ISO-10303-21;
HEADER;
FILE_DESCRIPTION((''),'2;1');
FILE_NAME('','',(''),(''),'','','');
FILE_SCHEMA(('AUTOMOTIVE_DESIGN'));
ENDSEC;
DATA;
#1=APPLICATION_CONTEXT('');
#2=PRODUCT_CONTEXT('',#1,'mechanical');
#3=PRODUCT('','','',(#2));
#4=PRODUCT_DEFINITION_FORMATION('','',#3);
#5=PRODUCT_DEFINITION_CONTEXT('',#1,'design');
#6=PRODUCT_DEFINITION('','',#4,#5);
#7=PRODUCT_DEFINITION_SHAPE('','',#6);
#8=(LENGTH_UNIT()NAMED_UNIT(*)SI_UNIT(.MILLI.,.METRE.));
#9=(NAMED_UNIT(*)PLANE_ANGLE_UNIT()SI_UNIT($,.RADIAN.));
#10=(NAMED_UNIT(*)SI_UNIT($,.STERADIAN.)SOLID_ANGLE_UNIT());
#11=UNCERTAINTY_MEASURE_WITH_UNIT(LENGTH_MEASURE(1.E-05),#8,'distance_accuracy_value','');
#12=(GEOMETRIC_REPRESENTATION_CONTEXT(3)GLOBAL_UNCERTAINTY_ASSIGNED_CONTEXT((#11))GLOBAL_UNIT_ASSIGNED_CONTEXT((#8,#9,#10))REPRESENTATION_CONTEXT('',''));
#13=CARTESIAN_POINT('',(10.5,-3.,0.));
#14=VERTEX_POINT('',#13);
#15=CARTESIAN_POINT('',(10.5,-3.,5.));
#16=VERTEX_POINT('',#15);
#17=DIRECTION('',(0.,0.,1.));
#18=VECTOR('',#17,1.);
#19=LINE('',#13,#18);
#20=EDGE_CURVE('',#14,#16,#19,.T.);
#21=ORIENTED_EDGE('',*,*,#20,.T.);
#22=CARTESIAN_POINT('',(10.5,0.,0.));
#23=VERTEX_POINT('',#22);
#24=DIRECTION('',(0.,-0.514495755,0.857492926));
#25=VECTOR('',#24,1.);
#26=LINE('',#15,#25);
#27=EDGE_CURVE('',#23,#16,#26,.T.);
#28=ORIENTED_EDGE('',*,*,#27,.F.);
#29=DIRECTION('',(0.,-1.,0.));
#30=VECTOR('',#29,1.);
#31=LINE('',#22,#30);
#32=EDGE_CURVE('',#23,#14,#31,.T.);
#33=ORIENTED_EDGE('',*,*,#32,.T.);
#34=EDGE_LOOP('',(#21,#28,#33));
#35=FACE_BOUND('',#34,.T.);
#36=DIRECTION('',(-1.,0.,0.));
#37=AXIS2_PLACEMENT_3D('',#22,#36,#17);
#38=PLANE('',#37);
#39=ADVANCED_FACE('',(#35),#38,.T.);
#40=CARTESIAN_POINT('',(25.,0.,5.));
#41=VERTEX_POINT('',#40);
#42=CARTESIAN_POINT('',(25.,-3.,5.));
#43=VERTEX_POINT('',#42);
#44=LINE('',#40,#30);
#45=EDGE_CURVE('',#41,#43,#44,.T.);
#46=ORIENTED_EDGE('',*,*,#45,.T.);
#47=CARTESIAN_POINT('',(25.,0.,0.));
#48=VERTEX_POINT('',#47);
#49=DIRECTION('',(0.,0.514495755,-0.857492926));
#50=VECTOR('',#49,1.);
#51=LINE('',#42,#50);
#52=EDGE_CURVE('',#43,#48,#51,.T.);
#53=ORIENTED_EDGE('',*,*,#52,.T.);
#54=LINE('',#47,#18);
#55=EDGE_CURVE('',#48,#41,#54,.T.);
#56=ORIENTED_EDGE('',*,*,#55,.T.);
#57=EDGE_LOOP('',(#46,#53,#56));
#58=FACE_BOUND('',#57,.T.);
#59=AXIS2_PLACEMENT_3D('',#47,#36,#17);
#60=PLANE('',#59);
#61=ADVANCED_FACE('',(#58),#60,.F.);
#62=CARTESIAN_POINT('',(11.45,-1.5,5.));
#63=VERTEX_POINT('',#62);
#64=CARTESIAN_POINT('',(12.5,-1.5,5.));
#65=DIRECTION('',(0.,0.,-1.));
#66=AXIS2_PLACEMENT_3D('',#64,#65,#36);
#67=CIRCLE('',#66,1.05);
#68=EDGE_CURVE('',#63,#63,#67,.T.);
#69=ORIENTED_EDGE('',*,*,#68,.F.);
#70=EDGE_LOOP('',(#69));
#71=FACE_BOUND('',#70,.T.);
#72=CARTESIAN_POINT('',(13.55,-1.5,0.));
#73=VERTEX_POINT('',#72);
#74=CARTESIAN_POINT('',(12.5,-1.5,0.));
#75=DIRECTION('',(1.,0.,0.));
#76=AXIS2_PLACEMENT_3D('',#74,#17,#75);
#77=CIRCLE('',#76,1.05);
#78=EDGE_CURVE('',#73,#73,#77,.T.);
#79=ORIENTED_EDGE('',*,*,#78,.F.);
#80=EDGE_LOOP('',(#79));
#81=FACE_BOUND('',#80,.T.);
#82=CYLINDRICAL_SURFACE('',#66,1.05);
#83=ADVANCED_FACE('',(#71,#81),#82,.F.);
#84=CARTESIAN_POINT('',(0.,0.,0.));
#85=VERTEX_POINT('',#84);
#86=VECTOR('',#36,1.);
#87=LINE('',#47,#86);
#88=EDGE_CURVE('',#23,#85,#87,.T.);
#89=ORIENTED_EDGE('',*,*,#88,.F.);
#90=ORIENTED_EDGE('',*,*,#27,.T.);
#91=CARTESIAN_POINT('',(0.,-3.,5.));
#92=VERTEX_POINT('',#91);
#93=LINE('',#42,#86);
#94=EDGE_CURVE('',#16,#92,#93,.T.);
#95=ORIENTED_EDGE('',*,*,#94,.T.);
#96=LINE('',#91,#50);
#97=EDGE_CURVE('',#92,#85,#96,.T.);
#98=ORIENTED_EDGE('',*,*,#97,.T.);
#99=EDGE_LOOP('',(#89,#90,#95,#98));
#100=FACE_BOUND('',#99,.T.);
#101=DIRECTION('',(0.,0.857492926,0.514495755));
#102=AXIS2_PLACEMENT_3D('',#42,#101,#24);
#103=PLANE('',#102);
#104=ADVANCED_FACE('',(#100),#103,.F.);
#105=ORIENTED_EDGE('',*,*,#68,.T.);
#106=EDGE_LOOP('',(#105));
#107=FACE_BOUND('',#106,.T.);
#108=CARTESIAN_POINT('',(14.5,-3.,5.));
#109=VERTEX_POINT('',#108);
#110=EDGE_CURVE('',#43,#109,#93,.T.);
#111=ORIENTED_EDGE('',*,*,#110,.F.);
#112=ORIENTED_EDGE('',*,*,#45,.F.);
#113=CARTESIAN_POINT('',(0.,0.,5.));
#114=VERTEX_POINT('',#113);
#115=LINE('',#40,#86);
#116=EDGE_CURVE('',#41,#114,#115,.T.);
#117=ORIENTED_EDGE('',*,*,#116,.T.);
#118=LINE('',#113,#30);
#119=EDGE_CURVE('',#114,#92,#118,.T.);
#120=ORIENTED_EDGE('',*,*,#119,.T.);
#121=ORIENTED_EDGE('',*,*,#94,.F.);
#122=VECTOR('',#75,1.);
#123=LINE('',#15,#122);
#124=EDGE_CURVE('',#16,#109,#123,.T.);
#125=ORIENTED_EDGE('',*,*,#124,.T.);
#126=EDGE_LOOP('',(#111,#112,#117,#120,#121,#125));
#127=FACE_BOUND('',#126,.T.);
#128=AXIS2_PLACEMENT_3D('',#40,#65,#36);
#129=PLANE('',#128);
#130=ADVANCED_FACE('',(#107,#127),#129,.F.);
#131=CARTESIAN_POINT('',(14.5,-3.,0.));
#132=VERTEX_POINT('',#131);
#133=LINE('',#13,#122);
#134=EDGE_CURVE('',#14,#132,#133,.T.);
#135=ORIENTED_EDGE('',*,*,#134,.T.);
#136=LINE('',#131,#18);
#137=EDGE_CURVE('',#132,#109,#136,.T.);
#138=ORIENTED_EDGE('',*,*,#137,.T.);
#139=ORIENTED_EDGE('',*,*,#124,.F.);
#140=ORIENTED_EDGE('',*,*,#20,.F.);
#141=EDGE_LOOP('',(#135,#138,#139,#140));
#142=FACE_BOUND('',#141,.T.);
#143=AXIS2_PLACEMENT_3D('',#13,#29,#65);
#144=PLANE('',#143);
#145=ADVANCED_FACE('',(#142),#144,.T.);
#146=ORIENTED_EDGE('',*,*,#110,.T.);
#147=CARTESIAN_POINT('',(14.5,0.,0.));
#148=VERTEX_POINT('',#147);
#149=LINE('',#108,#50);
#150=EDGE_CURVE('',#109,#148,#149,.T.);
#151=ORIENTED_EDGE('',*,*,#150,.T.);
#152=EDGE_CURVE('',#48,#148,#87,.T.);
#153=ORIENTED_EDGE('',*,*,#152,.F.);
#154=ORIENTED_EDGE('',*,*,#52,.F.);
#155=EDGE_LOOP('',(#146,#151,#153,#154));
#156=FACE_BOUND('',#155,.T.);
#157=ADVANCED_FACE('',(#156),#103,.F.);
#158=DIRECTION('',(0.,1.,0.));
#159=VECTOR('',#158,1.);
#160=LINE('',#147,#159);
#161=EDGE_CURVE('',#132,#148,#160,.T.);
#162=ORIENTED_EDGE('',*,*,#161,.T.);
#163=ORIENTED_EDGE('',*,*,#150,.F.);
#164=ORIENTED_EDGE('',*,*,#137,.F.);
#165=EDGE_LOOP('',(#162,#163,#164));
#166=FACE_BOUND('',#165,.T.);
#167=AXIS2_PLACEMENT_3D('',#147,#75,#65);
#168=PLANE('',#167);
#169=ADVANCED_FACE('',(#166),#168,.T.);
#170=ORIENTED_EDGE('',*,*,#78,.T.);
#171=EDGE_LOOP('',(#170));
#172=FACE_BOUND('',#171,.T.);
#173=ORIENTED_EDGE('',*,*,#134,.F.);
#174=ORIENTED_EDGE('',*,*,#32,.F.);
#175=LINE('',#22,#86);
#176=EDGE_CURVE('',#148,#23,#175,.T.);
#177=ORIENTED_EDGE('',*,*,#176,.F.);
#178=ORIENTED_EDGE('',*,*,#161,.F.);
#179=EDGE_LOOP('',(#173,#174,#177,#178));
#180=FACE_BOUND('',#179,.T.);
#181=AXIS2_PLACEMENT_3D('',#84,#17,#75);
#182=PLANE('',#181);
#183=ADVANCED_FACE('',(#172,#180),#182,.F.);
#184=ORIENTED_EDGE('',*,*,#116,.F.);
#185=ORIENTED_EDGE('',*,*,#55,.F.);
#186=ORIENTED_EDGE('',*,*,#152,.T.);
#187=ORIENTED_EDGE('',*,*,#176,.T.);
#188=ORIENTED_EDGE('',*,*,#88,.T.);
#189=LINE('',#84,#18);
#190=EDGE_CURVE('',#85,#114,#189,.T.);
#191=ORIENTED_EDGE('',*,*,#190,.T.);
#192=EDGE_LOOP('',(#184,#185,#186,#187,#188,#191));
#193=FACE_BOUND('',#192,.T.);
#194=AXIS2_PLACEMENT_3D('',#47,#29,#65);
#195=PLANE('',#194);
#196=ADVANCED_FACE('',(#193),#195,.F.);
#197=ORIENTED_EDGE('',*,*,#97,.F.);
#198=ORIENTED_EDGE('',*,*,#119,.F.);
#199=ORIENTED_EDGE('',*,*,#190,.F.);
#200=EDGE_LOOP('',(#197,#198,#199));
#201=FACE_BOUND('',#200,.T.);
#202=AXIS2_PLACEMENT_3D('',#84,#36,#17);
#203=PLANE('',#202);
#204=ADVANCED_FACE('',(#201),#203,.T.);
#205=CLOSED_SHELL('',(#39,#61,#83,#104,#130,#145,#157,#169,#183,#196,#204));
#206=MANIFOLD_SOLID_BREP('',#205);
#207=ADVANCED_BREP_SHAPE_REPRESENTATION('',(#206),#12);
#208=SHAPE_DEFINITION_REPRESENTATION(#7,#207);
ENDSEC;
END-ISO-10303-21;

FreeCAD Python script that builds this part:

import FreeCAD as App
import Part
import Sketcher
from FreeCAD import Vector

doc = App.newDocument("Part")
body = doc.addObject("PartDesign::Body", "Body")

# Sketch on YZ plane
sketch1 = doc.addObject("Sketcher::SketchObject", "Sketch")
body.addObject(sketch1)
sketch1.AttachmentSupport = (doc.YZ_Plane, [""])
sketch1.MapMode = "FlatFace"
sketch1.addGeometry(Part.LineSegment(Vector(0, 0, 0), Vector(0, 5, 0)), False)
sketch1.addGeometry(Part.LineSegment(Vector(0, 5, 0), Vector(-3, 5, 0)), False)
sketch1.addGeometry(Part.LineSegment(Vector(-3, 5, 0), Vector(0, 0, 0)), False)
sketch1.addConstraint(Sketcher.Constraint("Coincident", 0, 2, 1, 1))
sketch1.addConstraint(Sketcher.Constraint("Coincident", 1, 2, 2, 1))
sketch1.addConstraint(Sketcher.Constraint("Coincident", 2, 2, 0, 1))
sketch1.addConstraint(Sketcher.Constraint("Vertical", 0))
sketch1.addConstraint(Sketcher.Constraint("Horizontal", 1))
sketch1.addConstraint(Sketcher.Constraint("Coincident", 2, 2, -1, 1))
sketch1.addConstraint(Sketcher.Constraint("DistanceX", 1, 2, 1, 1, 3.0))
sketch1.addConstraint(Sketcher.Constraint("DistanceY", 0, 1, 0, 2, 5.0))
pad1 = doc.addObject("PartDesign::Pad", "Pad")
body.addObject(pad1)
pad1.Profile = sketch1
pad1.Length = 25

# Sketch on XY plane
sketch2 = doc.addObject("Sketcher::SketchObject", "Sketch001")
body.addObject(sketch2)
sketch2.AttachmentSupport = (doc.XY_Plane, [""])
sketch2.MapMode = "FlatFace"
sketch2.AttachmentOffset = App.Placement(Vector(0, 0, 5), App.Rotation())
sketch2.addGeometry(Part.LineSegment(Vector(10.5, 0, 0), Vector(10.5, -3, 0)), False)
sketch2.addGeometry(Part.LineSegment(Vector(10.5, -3, 0), Vector(14.5, -3, 0)), False)
sketch2.addGeometry(Part.LineSegment(Vector(14.5, -3, 0), Vector(14.5, 0, 0)), False)
sketch2.addGeometry(Part.LineSegment(Vector(14.5, 0, 0), Vector(10.5, 0, 0)), False)
sketch2.addConstraint(Sketcher.Constraint("Coincident", 0, 2, 1, 1))
sketch2.addConstraint(Sketcher.Constraint("Coincident", 1, 2, 2, 1))
sketch2.addConstraint(Sketcher.Constraint("Coincident", 2, 2, 3, 1))
sketch2.addConstraint(Sketcher.Constraint("Coincident", 3, 2, 0, 1))
sketch2.addConstraint(Sketcher.Constraint("Vertical", 0))
sketch2.addConstraint(Sketcher.Constraint("Horizontal", 1))
sketch2.addConstraint(Sketcher.Constraint("Vertical", 2))
sketch2.addConstraint(Sketcher.Constraint("Horizontal", 3))
sketch2.addConstraint(Sketcher.Constraint("PointOnObject", 2, 2, -1))
sketch2.addConstraint(Sketcher.Constraint("DistanceX", 1, 1, 1, 2, 4.0))
sketch2.addConstraint(Sketcher.Constraint("DistanceY", 0, 2, 0, 1, 3.0))
sketch2.addConstraint(Sketcher.Constraint("DistanceX", -1, 1, 0, 2, 10.5))
pad2 = doc.addObject("PartDesign::Pad", "Pad001")
body.addObject(pad2)
pad2.Profile = sketch2
pad2.Length = 5
pad2.Reversed = True

# Sketch on XY plane
sketch3 = doc.addObject("Sketcher::SketchObject", "Sketch002")
body.addObject(sketch3)
sketch3.AttachmentSupport = (doc.XY_Plane, [""])
sketch3.MapMode = "FlatFace"
sketch3.addGeometry(Part.Circle(Vector(12.5, -1.5, 0), Vector(0, 0, 1), 1.1), False)
sketch3.addConstraint(Sketcher.Constraint("Diameter", 0, 2.1))
sketch3.addConstraint(Sketcher.Constraint("DistanceX", -1, 1, 0, 3, 12.5))
sketch3.addConstraint(Sketcher.Constraint("DistanceY", 0, 3, -1, 1, 1.5))
pocket1 = doc.addObject("PartDesign::Pocket", "Pocket")
body.addObject(pocket1)
pocket1.Profile = sketch3
pocket1.Type = "ThroughAll"
pocket1.Midplane = True

doc.recompute()
